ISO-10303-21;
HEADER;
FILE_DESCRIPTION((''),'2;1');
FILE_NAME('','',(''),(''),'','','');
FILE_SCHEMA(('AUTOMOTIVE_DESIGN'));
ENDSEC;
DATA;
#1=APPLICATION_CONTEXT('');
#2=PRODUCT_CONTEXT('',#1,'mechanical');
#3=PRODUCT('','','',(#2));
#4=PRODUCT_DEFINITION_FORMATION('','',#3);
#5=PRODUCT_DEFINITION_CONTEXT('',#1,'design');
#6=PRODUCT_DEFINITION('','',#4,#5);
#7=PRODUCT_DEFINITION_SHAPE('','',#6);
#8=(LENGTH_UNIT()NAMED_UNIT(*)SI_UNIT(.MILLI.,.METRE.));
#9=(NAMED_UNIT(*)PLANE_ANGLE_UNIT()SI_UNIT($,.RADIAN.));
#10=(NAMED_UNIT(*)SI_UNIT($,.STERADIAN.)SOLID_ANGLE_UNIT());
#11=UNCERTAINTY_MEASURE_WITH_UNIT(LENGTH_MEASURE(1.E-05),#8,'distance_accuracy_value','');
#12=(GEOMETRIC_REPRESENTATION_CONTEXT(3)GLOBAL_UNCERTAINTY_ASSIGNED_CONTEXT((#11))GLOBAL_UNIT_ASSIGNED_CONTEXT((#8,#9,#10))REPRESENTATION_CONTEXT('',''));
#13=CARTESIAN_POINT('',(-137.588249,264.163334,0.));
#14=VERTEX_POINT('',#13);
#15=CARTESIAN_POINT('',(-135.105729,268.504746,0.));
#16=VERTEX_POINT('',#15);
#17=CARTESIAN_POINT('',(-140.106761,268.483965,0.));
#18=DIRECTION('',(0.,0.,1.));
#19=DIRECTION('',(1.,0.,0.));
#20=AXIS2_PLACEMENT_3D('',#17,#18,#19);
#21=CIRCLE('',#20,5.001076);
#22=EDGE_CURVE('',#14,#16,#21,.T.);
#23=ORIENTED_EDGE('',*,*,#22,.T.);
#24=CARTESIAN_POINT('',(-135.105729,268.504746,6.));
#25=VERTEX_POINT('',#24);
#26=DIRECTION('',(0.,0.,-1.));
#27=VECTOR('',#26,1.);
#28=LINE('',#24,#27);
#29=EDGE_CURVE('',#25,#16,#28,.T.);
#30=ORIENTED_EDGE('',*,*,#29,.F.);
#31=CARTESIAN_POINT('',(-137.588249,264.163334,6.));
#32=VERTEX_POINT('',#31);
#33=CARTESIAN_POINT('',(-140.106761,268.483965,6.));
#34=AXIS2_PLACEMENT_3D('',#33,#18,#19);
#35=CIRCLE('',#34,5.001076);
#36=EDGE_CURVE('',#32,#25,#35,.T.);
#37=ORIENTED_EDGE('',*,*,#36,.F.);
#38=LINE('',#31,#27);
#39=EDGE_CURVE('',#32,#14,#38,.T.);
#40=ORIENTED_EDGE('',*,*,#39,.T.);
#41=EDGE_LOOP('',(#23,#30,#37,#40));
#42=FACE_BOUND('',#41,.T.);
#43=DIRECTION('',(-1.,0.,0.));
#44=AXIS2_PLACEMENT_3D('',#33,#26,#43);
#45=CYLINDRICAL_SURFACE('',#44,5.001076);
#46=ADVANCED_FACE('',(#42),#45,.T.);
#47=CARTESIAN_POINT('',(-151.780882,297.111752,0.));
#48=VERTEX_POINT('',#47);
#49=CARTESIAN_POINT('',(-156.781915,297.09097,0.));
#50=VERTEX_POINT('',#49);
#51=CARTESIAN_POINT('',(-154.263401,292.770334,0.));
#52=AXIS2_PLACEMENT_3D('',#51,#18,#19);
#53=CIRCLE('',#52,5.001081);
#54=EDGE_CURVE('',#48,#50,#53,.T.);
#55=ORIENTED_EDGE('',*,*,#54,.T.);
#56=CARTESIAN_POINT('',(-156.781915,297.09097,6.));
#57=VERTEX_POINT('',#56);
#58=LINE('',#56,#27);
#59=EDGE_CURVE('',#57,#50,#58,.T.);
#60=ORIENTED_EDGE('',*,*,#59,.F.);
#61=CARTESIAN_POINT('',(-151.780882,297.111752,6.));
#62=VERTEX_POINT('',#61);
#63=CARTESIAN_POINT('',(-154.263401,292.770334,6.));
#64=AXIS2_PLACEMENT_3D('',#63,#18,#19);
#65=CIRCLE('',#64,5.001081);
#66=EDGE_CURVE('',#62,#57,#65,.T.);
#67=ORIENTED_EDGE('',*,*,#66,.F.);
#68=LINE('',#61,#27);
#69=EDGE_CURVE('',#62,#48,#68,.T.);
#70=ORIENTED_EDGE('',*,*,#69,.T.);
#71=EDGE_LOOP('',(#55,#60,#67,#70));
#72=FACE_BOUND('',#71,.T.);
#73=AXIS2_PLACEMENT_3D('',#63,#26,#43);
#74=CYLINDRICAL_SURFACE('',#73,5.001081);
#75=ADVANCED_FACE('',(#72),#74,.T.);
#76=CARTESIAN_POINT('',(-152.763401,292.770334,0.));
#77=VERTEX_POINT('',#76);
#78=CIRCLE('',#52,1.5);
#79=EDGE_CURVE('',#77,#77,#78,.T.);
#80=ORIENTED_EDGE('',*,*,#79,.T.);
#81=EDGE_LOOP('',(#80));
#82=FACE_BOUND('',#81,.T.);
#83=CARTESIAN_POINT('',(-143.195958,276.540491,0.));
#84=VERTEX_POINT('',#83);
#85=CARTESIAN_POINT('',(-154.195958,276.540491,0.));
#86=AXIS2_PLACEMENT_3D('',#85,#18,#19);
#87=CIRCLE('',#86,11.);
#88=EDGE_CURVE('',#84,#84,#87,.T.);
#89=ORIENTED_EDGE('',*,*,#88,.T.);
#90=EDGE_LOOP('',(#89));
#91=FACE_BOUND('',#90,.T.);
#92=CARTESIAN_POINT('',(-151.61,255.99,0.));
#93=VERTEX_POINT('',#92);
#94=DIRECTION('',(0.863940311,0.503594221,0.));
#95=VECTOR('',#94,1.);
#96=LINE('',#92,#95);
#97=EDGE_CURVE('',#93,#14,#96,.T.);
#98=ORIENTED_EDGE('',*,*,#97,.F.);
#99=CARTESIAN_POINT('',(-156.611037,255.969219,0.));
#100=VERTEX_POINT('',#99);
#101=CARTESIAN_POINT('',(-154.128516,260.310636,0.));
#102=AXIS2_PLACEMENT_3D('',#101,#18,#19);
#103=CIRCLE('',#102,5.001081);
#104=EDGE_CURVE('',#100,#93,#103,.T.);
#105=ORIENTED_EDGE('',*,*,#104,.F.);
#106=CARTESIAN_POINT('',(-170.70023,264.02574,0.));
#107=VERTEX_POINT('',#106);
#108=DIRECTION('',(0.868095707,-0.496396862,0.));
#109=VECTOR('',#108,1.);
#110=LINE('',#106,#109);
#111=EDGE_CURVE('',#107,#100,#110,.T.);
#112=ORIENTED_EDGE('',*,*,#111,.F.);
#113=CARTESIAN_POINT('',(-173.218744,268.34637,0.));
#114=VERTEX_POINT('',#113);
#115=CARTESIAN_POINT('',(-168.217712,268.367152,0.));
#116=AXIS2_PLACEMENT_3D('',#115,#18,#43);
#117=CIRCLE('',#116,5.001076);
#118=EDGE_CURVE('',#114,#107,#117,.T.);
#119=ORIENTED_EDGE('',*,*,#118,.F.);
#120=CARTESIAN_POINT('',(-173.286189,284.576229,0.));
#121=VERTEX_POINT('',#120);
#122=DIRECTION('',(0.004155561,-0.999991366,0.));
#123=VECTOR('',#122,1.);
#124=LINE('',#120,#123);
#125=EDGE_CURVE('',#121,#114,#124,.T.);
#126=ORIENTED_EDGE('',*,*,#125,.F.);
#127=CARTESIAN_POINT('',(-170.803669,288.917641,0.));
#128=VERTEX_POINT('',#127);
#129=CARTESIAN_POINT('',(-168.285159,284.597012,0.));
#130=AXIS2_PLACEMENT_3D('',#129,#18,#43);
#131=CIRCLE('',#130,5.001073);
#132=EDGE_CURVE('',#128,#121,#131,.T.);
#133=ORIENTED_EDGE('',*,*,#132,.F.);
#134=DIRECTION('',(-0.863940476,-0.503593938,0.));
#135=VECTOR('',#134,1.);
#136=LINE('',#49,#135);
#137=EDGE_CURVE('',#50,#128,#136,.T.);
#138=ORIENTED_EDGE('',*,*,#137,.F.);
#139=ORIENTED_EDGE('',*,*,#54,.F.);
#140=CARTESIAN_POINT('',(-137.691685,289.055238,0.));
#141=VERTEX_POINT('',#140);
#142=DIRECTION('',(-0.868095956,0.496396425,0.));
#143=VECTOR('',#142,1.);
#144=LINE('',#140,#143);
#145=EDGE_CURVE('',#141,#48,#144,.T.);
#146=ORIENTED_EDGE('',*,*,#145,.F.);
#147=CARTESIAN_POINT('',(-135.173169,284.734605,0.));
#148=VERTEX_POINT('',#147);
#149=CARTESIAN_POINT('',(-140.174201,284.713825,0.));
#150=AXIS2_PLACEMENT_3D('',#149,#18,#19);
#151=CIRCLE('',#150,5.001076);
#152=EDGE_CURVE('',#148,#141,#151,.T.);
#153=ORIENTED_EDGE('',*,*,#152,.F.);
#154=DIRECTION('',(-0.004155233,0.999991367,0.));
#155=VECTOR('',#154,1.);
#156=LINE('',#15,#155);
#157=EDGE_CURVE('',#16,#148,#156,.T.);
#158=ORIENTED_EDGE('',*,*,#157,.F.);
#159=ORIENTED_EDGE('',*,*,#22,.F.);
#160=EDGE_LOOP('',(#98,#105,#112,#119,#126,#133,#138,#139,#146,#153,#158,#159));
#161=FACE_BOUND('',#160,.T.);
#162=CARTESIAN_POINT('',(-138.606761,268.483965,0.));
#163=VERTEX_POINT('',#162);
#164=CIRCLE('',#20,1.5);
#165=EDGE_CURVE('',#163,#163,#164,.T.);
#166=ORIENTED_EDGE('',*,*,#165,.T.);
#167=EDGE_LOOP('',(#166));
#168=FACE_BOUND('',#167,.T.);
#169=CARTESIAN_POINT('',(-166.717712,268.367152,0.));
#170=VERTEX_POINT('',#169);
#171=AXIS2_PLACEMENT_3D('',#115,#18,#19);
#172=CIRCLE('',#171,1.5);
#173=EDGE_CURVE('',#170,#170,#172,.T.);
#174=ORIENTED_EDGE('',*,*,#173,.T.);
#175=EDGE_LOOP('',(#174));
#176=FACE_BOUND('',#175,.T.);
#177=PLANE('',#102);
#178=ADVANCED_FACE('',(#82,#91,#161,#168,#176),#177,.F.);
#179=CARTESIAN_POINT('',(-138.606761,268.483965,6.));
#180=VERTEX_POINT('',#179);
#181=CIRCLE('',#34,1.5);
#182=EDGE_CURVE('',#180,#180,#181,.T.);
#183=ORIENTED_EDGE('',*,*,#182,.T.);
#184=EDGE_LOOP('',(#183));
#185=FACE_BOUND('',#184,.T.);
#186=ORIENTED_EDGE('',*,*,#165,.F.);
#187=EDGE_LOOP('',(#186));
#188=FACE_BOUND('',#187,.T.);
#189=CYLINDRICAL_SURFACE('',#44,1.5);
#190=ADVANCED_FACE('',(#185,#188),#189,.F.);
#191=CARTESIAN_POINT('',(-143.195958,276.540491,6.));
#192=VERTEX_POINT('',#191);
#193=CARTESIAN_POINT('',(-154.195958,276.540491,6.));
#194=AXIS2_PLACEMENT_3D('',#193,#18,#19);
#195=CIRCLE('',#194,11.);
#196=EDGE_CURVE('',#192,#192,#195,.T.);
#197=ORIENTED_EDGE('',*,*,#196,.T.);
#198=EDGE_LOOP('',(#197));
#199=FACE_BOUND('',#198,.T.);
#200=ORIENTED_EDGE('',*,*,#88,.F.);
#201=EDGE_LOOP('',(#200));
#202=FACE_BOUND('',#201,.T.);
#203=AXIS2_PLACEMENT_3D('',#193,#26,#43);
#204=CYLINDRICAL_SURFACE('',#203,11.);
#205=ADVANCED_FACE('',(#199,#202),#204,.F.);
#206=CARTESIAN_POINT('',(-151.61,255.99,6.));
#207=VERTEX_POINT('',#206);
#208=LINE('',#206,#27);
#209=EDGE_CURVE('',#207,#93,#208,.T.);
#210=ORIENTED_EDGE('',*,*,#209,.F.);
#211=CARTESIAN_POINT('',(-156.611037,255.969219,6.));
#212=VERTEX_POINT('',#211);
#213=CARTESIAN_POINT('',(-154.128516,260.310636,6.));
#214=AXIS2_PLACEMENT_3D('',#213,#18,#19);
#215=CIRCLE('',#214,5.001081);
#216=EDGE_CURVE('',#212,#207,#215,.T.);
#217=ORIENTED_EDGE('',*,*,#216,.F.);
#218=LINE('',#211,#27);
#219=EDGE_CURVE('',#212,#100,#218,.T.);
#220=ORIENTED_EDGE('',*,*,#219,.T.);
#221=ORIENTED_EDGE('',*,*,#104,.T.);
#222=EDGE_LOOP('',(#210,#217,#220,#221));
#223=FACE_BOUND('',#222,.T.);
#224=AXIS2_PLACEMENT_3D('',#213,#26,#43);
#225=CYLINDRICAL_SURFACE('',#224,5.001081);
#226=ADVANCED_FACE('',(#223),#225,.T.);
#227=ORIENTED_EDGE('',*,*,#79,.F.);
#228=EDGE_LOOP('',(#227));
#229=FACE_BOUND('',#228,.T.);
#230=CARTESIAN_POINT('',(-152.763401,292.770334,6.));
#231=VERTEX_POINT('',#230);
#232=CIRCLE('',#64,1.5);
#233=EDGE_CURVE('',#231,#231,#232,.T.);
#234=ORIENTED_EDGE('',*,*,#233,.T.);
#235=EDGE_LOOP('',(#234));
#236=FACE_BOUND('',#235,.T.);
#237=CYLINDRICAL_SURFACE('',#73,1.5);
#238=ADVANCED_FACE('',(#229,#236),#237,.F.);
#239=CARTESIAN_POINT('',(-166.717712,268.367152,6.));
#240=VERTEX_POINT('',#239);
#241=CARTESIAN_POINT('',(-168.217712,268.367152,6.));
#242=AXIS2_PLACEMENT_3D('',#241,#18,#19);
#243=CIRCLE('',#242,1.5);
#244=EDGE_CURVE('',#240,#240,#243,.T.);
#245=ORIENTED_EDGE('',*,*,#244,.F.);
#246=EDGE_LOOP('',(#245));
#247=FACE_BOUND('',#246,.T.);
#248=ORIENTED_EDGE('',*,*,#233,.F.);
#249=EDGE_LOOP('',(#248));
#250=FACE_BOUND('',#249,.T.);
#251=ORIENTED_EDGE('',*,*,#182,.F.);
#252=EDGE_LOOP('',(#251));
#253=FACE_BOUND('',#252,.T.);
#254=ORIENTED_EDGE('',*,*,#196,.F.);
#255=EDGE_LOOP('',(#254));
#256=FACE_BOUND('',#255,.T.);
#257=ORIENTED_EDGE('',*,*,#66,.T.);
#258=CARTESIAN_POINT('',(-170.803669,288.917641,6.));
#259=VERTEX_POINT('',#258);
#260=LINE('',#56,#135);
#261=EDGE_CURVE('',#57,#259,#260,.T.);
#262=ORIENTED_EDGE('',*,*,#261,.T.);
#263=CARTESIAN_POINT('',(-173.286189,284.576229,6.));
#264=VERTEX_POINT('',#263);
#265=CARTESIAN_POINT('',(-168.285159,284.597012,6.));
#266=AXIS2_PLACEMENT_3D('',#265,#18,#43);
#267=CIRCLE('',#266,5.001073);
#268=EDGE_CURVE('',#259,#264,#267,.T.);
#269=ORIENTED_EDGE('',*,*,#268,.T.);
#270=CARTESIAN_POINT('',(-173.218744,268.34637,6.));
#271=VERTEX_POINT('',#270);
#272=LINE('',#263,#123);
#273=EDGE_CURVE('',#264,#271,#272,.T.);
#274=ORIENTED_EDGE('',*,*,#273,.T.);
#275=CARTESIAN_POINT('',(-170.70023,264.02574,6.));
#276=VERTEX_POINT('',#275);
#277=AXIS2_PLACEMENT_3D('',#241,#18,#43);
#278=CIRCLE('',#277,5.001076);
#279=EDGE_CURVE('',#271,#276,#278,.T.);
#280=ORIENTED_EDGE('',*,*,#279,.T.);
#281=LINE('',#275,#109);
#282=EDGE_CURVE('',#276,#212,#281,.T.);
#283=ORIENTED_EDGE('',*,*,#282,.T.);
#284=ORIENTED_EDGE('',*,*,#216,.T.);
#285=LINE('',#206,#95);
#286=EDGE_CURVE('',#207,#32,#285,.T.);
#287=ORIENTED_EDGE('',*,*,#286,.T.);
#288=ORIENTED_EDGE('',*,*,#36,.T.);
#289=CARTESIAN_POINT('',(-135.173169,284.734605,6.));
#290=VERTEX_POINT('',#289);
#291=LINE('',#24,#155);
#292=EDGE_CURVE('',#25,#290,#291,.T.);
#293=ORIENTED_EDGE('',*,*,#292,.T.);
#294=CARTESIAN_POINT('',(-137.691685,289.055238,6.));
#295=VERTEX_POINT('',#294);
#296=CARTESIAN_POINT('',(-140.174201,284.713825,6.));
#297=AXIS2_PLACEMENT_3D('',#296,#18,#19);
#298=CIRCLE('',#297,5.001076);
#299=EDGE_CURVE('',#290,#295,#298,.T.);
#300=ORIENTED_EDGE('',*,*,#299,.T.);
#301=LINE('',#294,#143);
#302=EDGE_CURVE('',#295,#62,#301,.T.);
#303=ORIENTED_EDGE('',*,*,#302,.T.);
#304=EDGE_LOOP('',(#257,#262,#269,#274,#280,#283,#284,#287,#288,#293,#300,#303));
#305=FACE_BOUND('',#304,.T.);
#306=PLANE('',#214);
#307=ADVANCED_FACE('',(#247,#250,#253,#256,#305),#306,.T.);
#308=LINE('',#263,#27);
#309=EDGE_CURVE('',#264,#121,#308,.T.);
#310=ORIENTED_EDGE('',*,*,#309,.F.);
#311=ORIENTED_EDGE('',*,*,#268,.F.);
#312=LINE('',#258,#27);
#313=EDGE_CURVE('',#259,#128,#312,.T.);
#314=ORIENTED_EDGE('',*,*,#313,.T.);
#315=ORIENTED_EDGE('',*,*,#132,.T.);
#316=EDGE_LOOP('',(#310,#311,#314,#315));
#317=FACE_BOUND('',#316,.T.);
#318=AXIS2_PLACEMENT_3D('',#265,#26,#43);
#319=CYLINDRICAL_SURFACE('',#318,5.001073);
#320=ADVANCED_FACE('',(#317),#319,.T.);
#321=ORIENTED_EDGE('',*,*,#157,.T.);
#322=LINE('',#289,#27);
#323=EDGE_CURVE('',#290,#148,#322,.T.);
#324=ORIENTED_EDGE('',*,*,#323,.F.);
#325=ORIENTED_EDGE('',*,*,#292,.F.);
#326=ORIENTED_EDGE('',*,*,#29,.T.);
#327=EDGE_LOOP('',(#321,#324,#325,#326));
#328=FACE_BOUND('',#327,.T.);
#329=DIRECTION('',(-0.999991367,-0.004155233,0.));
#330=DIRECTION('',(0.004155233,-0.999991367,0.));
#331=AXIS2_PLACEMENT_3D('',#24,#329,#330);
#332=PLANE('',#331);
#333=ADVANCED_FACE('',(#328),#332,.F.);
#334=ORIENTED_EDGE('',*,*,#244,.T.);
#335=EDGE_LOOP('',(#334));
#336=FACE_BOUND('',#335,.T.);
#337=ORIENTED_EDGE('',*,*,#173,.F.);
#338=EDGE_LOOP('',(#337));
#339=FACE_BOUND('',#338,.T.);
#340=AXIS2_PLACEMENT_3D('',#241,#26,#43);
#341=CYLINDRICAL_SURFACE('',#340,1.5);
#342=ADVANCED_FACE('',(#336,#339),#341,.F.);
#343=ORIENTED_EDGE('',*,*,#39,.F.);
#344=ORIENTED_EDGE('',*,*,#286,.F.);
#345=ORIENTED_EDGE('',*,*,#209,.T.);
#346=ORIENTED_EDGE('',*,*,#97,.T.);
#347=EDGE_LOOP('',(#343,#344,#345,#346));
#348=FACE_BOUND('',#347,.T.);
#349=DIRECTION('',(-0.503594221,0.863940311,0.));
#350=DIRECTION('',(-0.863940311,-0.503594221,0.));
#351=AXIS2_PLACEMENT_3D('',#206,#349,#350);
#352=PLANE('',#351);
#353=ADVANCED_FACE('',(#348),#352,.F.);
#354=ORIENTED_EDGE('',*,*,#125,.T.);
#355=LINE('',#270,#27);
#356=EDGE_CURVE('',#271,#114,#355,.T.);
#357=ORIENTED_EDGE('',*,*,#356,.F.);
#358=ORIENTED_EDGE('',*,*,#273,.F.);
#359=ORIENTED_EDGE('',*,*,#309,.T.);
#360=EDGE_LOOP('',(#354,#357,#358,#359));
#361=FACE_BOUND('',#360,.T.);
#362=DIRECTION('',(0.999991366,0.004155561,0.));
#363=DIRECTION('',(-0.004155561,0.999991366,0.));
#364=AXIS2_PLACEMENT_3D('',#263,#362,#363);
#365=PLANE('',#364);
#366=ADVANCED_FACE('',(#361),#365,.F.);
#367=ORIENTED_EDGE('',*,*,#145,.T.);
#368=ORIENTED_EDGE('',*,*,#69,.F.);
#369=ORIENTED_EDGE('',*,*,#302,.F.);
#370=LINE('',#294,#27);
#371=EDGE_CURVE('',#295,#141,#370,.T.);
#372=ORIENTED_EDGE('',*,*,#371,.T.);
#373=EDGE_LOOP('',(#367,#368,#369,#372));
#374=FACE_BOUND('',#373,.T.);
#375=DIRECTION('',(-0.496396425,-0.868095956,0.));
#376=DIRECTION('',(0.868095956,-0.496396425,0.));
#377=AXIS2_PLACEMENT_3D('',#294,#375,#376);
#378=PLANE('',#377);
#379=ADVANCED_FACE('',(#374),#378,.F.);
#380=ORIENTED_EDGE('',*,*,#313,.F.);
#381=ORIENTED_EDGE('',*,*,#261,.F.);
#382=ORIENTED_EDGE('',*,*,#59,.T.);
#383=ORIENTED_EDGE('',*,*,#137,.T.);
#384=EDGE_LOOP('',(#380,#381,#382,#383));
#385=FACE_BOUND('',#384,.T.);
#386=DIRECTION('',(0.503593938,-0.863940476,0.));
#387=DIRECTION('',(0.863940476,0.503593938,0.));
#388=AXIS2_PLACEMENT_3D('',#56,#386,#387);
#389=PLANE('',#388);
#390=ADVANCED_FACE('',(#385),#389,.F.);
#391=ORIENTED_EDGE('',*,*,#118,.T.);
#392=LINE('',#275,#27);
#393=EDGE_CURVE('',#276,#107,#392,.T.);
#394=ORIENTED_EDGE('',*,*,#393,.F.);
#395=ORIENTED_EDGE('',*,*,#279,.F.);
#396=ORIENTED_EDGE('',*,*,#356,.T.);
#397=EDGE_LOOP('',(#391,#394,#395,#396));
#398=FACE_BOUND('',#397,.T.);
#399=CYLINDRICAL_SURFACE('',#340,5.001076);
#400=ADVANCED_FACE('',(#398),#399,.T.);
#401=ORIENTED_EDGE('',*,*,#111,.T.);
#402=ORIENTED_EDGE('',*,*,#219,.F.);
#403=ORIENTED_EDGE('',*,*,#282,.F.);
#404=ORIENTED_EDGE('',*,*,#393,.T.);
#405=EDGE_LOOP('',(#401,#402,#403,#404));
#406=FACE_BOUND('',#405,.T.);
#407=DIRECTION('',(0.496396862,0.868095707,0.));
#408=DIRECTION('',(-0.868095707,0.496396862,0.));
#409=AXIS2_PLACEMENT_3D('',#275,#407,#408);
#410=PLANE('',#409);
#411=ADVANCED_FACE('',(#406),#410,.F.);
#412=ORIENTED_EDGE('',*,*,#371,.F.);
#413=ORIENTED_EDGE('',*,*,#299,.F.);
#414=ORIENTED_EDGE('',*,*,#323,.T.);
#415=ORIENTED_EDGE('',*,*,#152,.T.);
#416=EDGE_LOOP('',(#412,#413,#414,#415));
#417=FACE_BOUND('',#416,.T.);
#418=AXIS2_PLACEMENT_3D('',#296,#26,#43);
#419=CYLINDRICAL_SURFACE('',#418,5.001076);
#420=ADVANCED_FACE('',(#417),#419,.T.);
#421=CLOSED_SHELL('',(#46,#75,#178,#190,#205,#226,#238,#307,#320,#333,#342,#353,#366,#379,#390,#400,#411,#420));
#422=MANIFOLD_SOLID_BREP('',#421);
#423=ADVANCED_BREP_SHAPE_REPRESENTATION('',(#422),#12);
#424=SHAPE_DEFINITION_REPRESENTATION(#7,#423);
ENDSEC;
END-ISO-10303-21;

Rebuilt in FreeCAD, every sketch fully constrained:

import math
import FreeCAD as App
import Part
import Sketcher
from FreeCAD import Vector

doc = App.newDocument("Part")
body = doc.addObject("PartDesign::Body", "Body")

# Sketch on XY plane
sketch1 = doc.addObject("Sketcher::SketchObject", "Sketch")
body.addObject(sketch1)
sketch1.AttachmentSupport = (doc.XY_Plane, [""])
sketch1.MapMode = "FlatFace"
sketch1.addGeometry(Part.LineSegment(Vector(-151.61, 255.99, 0), Vector(-137.588249, 264.163334, 0)), False)
sketch1.addGeometry(Part.ArcOfCircle(Part.Circle(Vector(-140.106761, 268.483965, 0), Vector(0, 0, 1), 5.001076), math.radians(-59.761922), math.radians(0.238078)), False)
sketch1.addGeometry(Part.LineSegment(Vector(-135.105729, 268.504746, 0), Vector(-135.173169, 284.734605, 0)), False)
sketch1.addGeometry(Part.ArcOfCircle(Part.Circle(Vector(-140.174201, 284.713825, 0), Vector(0, 0, 1), 5.001076), math.radians(0.238078), math.radians(60.238126)), False)
sketch1.addGeometry(Part.LineSegment(Vector(-137.691685, 289.055238, 0), Vector(-151.780882, 297.111752, 0)), False)
sketch1.addGeometry(Part.ArcOfCircle(Part.Circle(Vector(-154.263401, 292.770334, 0), Vector(0, 0, 1), 5.001081), math.radians(60.238126), math.radians(120.238059)), False)
sketch1.addGeometry(Part.LineSegment(Vector(-156.781915, 297.09097, 0), Vector(-170.803669, 288.917641, 0)), False)
sketch1.addGeometry(Part.ArcOfCircle(Part.Circle(Vector(-168.285159, 284.597012, 0), Vector(0, 0, 1), 5.001073), math.radians(120.238059), math.radians(180.238097)), False)
sketch1.addGeometry(Part.LineSegment(Vector(-173.286189, 284.576229, 0), Vector(-173.218744, 268.34637, 0)), False)
sketch1.addGeometry(Part.ArcOfCircle(Part.Circle(Vector(-168.217712, 268.367152, 0), Vector(0, 0, 1), 5.001076), math.radians(-179.761903), math.radians(-119.761903)), False)
sketch1.addGeometry(Part.LineSegment(Vector(-170.70023, 264.02574, 0), Vector(-156.611037, 255.969219, 0)), False)
sketch1.addGeometry(Part.ArcOfCircle(Part.Circle(Vector(-154.128516, 260.310636, 0), Vector(0, 0, 1), 5.001081), math.radians(-119.761903), math.radians(-59.761922)), False)
sketch1.addGeometry(Part.Circle(Vector(-168.217712, 268.367152, 0), Vector(0, 0, 1), 1.5), False)
sketch1.addGeometry(Part.Circle(Vector(-154.195958, 276.540491, 0), Vector(0, 0, 1), 11), False)
sketch1.addGeometry(Part.Circle(Vector(-140.106761, 268.483965, 0), Vector(0, 0, 1), 1.5), False)
sketch1.addGeometry(Part.Circle(Vector(-154.263401, 292.770334, 0), Vector(0, 0, 1), 1.5), False)
sketch1.addConstraint(Sketcher.Constraint("Tangent", 0, 2, 1, 1))
sketch1.addConstraint(Sketcher.Constraint("Tangent", 1, 2, 2, 1))
sketch1.addConstraint(Sketcher.Constraint("Tangent", 2, 2, 3, 1))
sketch1.addConstraint(Sketcher.Constraint("Tangent", 3, 2, 4, 1))
sketch1.addConstraint(Sketcher.Constraint("Tangent", 4, 2, 5, 1))
sketch1.addConstraint(Sketcher.Constraint("Tangent", 5, 2, 6, 1))
sketch1.addConstraint(Sketcher.Constraint("Tangent", 6, 2, 7, 1))
sketch1.addConstraint(Sketcher.Constraint("Tangent", 7, 2, 8, 1))
sketch1.addConstraint(Sketcher.Constraint("Tangent", 8, 2, 9, 1))
sketch1.addConstraint(Sketcher.Constraint("Tangent", 9, 2, 10, 1))
sketch1.addConstraint(Sketcher.Constraint("Tangent", 10, 2, 11, 1))
sketch1.addConstraint(Sketcher.Constraint("Tangent", 11, 2, 0, 1))
sketch1.addConstraint(Sketcher.Constraint("Coincident", 12, 3, 9, 3))
sketch1.addConstraint(Sketcher.Constraint("Coincident", 14, 3, 1, 3))
sketch1.addConstraint(Sketcher.Constraint("Coincident", 15, 3, 5, 3))
sketch1.addConstraint(Sketcher.Constraint("Equal", 1, 3))
sketch1.addConstraint(Sketcher.Constraint("Equal", 3, 9))
sketch1.addConstraint(Sketcher.Constraint("Equal", 5, 11))
sketch1.addConstraint(Sketcher.Constraint("Equal", 12, 14))
sketch1.addConstraint(Sketcher.Constraint("Equal", 14, 15))
sketch1.addConstraint(Sketcher.Constraint("Parallel", 0, 6))
sketch1.addConstraint(Sketcher.Constraint("Parallel", 2, 8))
sketch1.addConstraint(Sketcher.Constraint("Parallel", 4, 10))
sketch1.addConstraint(Sketcher.Constraint("Equal", 0, 2))
sketch1.addConstraint(Sketcher.Constraint("Equal", 2, 4))
sketch1.addConstraint(Sketcher.Constraint("Equal", 4, 6))
sketch1.addConstraint(Sketcher.Constraint("Equal", 6, 8))
sketch1.addConstraint(Sketcher.Constraint("Diameter", 12, 3.0))
sketch1.addConstraint(Sketcher.Constraint("Diameter", 13, 22.0))
sketch1.addConstraint(Sketcher.Constraint("Distance", 0, 16.23))
sketch1.addConstraint(Sketcher.Constraint("DistanceX", 11, 2, -1, 1, 151.61))
sketch1.addConstraint(Sketcher.Constraint("DistanceY", -1, 1, 11, 2, 255.99))
sketch1.addConstraint(Sketcher.Constraint("Radius", 5, 5.001081))
sketch1.addConstraint(Sketcher.Constraint("Radius", 1, 5.001076))
sketch1.addConstraint(Sketcher.Constraint("DistanceX", 3, 3, -1, 1, 140.174201))
sketch1.addConstraint(Sketcher.Constraint("DistanceX", 5, 3, -1, 1, 154.263401))
sketch1.addConstraint(Sketcher.Constraint("DistanceY", 11, 3, 5, 3, 32.459698))
sketch1.addConstraint(Sketcher.Constraint("DistanceY", -1, 1, 13, 3, 276.540491))
sketch1.addConstraint(Sketcher.Constraint("DistanceX", 13, 3, 0, 2, 16.607709))
pad1 = doc.addObject("PartDesign::Pad", "Pad")
body.addObject(pad1)
pad1.Profile = sketch1
pad1.Length = 6

doc.recompute()
